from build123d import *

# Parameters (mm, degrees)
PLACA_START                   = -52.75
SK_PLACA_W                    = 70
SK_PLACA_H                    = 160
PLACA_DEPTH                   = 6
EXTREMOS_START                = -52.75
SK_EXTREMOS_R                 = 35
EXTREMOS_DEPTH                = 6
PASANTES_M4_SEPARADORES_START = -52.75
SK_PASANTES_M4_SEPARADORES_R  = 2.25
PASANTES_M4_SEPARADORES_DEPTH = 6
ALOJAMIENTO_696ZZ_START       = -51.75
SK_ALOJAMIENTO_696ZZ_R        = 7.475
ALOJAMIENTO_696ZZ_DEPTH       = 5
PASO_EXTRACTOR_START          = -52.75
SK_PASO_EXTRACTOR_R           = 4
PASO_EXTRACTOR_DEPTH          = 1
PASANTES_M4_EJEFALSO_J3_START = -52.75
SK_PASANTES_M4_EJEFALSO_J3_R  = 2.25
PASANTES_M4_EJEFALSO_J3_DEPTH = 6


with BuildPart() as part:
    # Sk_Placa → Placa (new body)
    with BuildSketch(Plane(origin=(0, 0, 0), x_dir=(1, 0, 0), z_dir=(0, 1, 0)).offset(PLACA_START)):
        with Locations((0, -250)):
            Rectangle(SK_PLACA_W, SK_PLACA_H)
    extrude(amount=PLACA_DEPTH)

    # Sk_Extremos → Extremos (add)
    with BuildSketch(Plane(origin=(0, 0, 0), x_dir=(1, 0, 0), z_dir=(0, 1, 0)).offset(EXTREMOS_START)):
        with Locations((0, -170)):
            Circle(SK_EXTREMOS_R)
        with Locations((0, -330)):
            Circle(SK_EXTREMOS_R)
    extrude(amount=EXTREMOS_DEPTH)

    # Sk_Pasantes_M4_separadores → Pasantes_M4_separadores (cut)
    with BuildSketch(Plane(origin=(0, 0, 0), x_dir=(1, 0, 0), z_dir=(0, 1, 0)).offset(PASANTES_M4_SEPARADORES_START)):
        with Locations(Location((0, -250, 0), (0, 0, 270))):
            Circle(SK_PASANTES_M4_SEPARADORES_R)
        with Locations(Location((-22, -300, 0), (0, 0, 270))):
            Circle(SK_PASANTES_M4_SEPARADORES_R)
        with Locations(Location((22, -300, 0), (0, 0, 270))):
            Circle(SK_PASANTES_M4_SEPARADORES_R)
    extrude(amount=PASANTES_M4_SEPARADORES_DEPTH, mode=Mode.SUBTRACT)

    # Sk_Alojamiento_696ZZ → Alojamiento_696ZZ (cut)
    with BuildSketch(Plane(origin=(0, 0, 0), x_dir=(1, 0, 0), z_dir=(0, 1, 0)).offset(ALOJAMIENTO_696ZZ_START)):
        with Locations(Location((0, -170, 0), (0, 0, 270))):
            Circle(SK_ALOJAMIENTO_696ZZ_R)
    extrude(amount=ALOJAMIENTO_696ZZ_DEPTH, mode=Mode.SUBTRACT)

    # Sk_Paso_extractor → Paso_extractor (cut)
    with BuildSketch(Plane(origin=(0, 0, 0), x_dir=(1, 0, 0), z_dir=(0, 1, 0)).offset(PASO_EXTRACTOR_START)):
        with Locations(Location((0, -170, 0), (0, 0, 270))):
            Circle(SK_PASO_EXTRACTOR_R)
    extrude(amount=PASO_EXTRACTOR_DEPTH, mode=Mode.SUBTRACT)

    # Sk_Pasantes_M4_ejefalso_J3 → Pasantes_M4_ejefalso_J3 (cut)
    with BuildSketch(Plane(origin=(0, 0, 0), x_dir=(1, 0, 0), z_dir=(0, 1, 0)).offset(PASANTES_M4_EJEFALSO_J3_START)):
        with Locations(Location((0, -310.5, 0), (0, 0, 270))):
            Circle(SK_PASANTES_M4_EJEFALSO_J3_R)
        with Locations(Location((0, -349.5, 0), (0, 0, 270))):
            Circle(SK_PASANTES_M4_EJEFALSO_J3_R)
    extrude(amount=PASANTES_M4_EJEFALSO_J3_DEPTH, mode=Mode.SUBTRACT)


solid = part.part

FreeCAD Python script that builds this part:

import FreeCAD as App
import Part
import Sketcher

V = App.Vector
Q = App.Units.Quantity


def add_polygon(sketch, points):
    """Adds a closed chain of lines whose ends are joined by coincident constraints."""
    first, n = sketch.GeometryCount, len(points)
    for a, b in zip(points, points[1:] + points[:1]):
        sketch.addGeometry(Part.LineSegment(App.Vector(*a, 0), App.Vector(*b, 0)), False)
    for i in range(n):
        sketch.addConstraint(Sketcher.Constraint("Coincident", first + i, 2, first + (i + 1) % n, 1))

doc = App.newDocument("Part")
body = doc.addObject("PartDesign::Body", "Body")

# Sketch on XZ plane
sketch1 = body.newObject("Sketcher::SketchObject", "Sketch")
sketch1.AttachmentSupport = (doc.getObject("XZ_Plane"), [""])
sketch1.MapMode = "FlatFace"
sketch1.AttachmentOffset = App.Placement(V(0, 0, 52.75), App.Rotation())
add_polygon(sketch1, [(-35, 170), (-35, 330), (35, 330), (35, 170)])  # lines 0-3
sketch1.addConstraint([
    Sketcher.Constraint("Vertical", 0),
    Sketcher.Constraint("Horizontal", 1),
    Sketcher.Constraint("Vertical", 2),
    Sketcher.Constraint("Horizontal", 3),
    Sketcher.Constraint("DistanceX", 1, 1, 1, 2, Q("70 mm")),
    Sketcher.Constraint("DistanceY", 0, 1, 0, 2, Q("160 mm")),
    Sketcher.Constraint("DistanceX", 0, 2, -1, 1, Q("35 mm")),
    Sketcher.Constraint("DistanceY", -1, 1, 0, 2, Q("330 mm")),
])
pad1 = body.newObject("PartDesign::Pad", "Pad")
pad1.Profile = sketch1
pad1.Length = 6
pad1.Reversed = True

# Sketch on XZ plane
sketch2 = body.newObject("Sketcher::SketchObject", "Sketch001")
sketch2.AttachmentSupport = (doc.getObject("XZ_Plane"), [""])
sketch2.MapMode = "FlatFace"
sketch2.AttachmentOffset = App.Placement(V(0, 0, 52.75), App.Rotation())
sketch2.addGeometry([
    Part.Circle(V(0, 170, 0), V(0, 0, 1), 35),
    Part.Circle(V(0, 330, 0), V(0, 0, 1), 35),
], False)
sketch2.addConstraint([
    Sketcher.Constraint("Equal", 0, 1),
    Sketcher.Constraint("PointOnObject", 0, 3, -2),
    Sketcher.Constraint("PointOnObject", 1, 3, -2),
    Sketcher.Constraint("Diameter", 0, Q("70 mm")),
    Sketcher.Constraint("DistanceY", -1, 1, 0, 3, Q("170 mm")),
    Sketcher.Constraint("DistanceY", -1, 1, 1, 3, Q("330 mm")),
])
pad2 = body.newObject("PartDesign::Pad", "Pad001")
pad2.Profile = sketch2
pad2.Length = 6
pad2.Reversed = True

# Sketch on XZ plane
sketch3 = body.newObject("Sketcher::SketchObject", "Sketch002")
sketch3.AttachmentSupport = (doc.getObject("XZ_Plane"), [""])
sketch3.MapMode = "FlatFace"
sketch3.AttachmentOffset = App.Placement(V(0, 0, 52.75), App.Rotation())
sketch3.addGeometry([
    Part.Circle(V(0, 250, 0), V(0, 0, 1), 2.25),
    Part.Circle(V(-22, 300, 0), V(0, 0, 1), 2.25),
    Part.Circle(V(22, 300, 0), V(0, 0, 1), 2.25),
], False)
sketch3.addConstraint([
    Sketcher.Constraint("Equal", 0, 1),
    Sketcher.Constraint("Equal", 1, 2),
    Sketcher.Constraint("Symmetric", 1, 3, 2, 3, -2),
    Sketcher.Constraint("PointOnObject", 0, 3, -2),
    Sketcher.Constraint("Diameter", 0, Q("4.5 mm")),
    Sketcher.Constraint("DistanceY", -1, 1, 0, 3, Q("250 mm")),
    Sketcher.Constraint("DistanceX", 1, 3, -1, 1, Q("22 mm")),
    Sketcher.Constraint("DistanceY", -1, 1, 1, 3, Q("300 mm")),
])
pocket1 = body.newObject("PartDesign::Pocket", "Pocket")
pocket1.Profile = sketch3
pocket1.Length = 6

# Sketch on XZ plane
sketch4 = body.newObject("Sketcher::SketchObject", "Sketch003")
sketch4.AttachmentSupport = (doc.getObject("XZ_Plane"), [""])
sketch4.MapMode = "FlatFace"
sketch4.AttachmentOffset = App.Placement(V(0, 0, 51.75), App.Rotation())
sketch4.addGeometry(Part.Circle(V(0, 170, 0), V(0, 0, 1), 7.475), False)
sketch4.addConstraint([
    Sketcher.Constraint("PointOnObject", 0, 3, -2),
    Sketcher.Constraint("Diameter", 0, Q("14.95 mm")),
    Sketcher.Constraint("DistanceY", -1, 1, 0, 3, Q("170 mm")),
])
pocket2 = body.newObject("PartDesign::Pocket", "Pocket001")
pocket2.Profile = sketch4
pocket2.Length = 5

# Sketch on XZ plane
sketch5 = body.newObject("Sketcher::SketchObject", "Sketch004")
sketch5.AttachmentSupport = (doc.getObject("XZ_Plane"), [""])
sketch5.MapMode = "FlatFace"
sketch5.AttachmentOffset = App.Placement(V(0, 0, 52.75), App.Rotation())
sketch5.addGeometry(Part.Circle(V(0, 170, 0), V(0, 0, 1), 4), False)
sketch5.addConstraint([
    Sketcher.Constraint("PointOnObject", 0, 3, -2),
    Sketcher.Constraint("Diameter", 0, Q("8 mm")),
    Sketcher.Constraint("DistanceY", -1, 1, 0, 3, Q("170 mm")),
])
pocket3 = body.newObject("PartDesign::Pocket", "Pocket002")
pocket3.Profile = sketch5
pocket3.Length = 1

# Sketch on XZ plane
sketch6 = body.newObject("Sketcher::SketchObject", "Sketch005")
sketch6.AttachmentSupport = (doc.getObject("XZ_Plane"), [""])
sketch6.MapMode = "FlatFace"
sketch6.AttachmentOffset = App.Placement(V(0, 0, 52.75), App.Rotation())
sketch6.addGeometry([
    Part.Circle(V(0, 310.5, 0), V(0, 0, 1), 2.25),
    Part.Circle(V(0, 349.5, 0), V(0, 0, 1), 2.25),
], False)
sketch6.addConstraint([
    Sketcher.Constraint("Equal", 0, 1),
    Sketcher.Constraint("PointOnObject", 0, 3, -2),
    Sketcher.Constraint("PointOnObject", 1, 3, -2),
    Sketcher.Constraint("Diameter", 0, Q("4.5 mm")),
    Sketcher.Constraint("DistanceY", 0, 3, 1, 3, Q("39 mm")),
    Sketcher.Constraint("DistanceY", -1, 1, 0, 3, Q("310.5 mm")),
])
pocket4 = body.newObject("PartDesign::Pocket", "Pocket003")
pocket4.Profile = sketch6
pocket4.Length = 6

doc.recompute()
